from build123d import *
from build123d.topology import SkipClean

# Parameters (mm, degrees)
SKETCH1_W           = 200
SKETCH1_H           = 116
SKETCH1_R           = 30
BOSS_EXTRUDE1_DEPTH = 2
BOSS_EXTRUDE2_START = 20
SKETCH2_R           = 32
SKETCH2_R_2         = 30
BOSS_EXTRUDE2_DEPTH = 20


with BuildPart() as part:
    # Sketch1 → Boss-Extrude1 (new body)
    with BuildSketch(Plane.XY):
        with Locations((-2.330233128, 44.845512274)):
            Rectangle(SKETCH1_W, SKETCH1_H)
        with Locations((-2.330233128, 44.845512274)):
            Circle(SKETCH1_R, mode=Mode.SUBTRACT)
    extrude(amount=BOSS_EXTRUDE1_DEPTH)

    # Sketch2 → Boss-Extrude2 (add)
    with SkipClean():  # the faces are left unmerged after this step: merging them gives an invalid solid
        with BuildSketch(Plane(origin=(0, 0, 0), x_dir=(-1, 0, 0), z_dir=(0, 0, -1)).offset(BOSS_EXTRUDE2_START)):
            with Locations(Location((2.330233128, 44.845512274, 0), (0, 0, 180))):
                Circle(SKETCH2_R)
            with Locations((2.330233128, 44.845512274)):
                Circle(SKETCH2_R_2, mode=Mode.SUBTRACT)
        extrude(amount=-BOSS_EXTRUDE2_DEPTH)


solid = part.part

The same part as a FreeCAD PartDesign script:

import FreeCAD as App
import Part
import Sketcher
from FreeCAD import Vector
Q = App.Units.Quantity


def add_polygon(sketch, points):
    """Adds a closed chain of lines whose ends are joined by coincident constraints."""
    first, n = sketch.GeometryCount, len(points)
    for a, b in zip(points, points[1:] + points[:1]):
        sketch.addGeometry(Part.LineSegment(App.Vector(*a, 0), App.Vector(*b, 0)), False)
    for i in range(n):
        sketch.addConstraint(Sketcher.Constraint("Coincident", first + i, 2, first + (i + 1) % n, 1))

doc = App.newDocument("Part")
params = doc.addObject("Spreadsheet::Sheet", "Params")
for row, (alias, value) in enumerate([
    ("sketch1_diameter", "60 mm"),
    ("sketch1_width", "200 mm"),
    ("sketch1_height", "116 mm"),
    ("pad1_length", "2 mm"),
    ("sketch2_diameter", "64 mm"),
    ("sketch2_diameter2", "60 mm"),
    ("pad2_length", "20 mm"),
], start=1):
    params.set(f"A{row}", alias)
    params.set(f"B{row}", "=" + value)
    params.setAlias(f"B{row}", alias)

body = doc.addObject("PartDesign::Body", "Body")

# Sketch on XY plane
sketch1 = body.newObject("Sketcher::SketchObject", "Sketch")
sketch1.AttachmentSupport = (doc.getObject("XY_Plane"), [""])
sketch1.MapMode = "FlatFace"
add_polygon(sketch1, [(-102.330233, 102.845512), (-102.330233, -13.154488), (97.669767, -13.154488), (97.669767, 102.845512)])  # lines 0-3
sketch1.addGeometry(Part.Circle(Vector(-2.330233, 44.845512, 0), Vector(0, 0, 1), 30), False)  # 4
sketch1.addConstraint(Sketcher.Constraint("Vertical", 0))
sketch1.addConstraint(Sketcher.Constraint("Horizontal", 1))
sketch1.addConstraint(Sketcher.Constraint("Vertical", 2))
sketch1.addConstraint(Sketcher.Constraint("Horizontal", 3))
sketch1.addConstraint(Sketcher.Constraint("Diameter", 4, Q("60 mm")))
sketch1.addConstraint(Sketcher.Constraint("DistanceX", 1, 1, 1, 2, Q("200 mm")))
sketch1.addConstraint(Sketcher.Constraint("DistanceY", 0, 2, 0, 1, Q("116 mm")))
sketch1.addConstraint(Sketcher.Constraint("DistanceX", 0, 2, 4, 3, Q("100 mm")))
sketch1.addConstraint(Sketcher.Constraint("DistanceY", 0, 2, 4, 3, Q("58 mm")))
sketch1.addConstraint(Sketcher.Constraint("DistanceX", 4, 3, -1, 1, Q("2.330233 mm")))
sketch1.addConstraint(Sketcher.Constraint("DistanceY", -1, 1, 4, 3, Q("44.845512 mm")))
sketch1.setExpression("Constraints[8]", "Params.sketch1_diameter")
sketch1.setExpression("Constraints[9]", "Params.sketch1_width")
sketch1.setExpression("Constraints[10]", "Params.sketch1_height")
pad1 = body.newObject("PartDesign::Pad", "Pad")
pad1.Profile = sketch1
pad1.setExpression("Length", "Params.pad1_length")

# Sketch on XY plane
sketch2 = body.newObject("Sketcher::SketchObject", "Sketch001")
sketch2.AttachmentSupport = (doc.getObject("XY_Plane"), [""])
sketch2.MapMode = "FlatFace"
sketch2.AttachmentOffset = App.Placement(Vector(0, 0, -20), App.Rotation())
sketch2.addGeometry(Part.Circle(Vector(-2.330233, 44.845512, 0), Vector(0, 0, 1), 32), False)
sketch2.addGeometry(Part.Circle(Vector(-2.330233, 44.845512, 0), Vector(0, 0, 1), 30), False)
sketch2.addConstraint(Sketcher.Constraint("Coincident", 1, 3, 0, 3))
sketch2.addConstraint(Sketcher.Constraint("Diameter", 0, Q("64 mm")))
sketch2.addConstraint(Sketcher.Constraint("Diameter", 1, Q("60 mm")))
sketch2.addConstraint(Sketcher.Constraint("DistanceX", 0, 3, -1, 1, Q("2.330233 mm")))
sketch2.addConstraint(Sketcher.Constraint("DistanceY", -1, 1, 0, 3, Q("44.845512 mm")))
sketch2.setExpression("Constraints[1]", "Params.sketch2_diameter")
sketch2.setExpression("Constraints[2]", "Params.sketch2_diameter2")
pad2 = body.newObject("PartDesign::Pad", "Pad001")
pad2.Profile = sketch2
pad2.setExpression("Length", "Params.pad2_length")

doc.recompute()
